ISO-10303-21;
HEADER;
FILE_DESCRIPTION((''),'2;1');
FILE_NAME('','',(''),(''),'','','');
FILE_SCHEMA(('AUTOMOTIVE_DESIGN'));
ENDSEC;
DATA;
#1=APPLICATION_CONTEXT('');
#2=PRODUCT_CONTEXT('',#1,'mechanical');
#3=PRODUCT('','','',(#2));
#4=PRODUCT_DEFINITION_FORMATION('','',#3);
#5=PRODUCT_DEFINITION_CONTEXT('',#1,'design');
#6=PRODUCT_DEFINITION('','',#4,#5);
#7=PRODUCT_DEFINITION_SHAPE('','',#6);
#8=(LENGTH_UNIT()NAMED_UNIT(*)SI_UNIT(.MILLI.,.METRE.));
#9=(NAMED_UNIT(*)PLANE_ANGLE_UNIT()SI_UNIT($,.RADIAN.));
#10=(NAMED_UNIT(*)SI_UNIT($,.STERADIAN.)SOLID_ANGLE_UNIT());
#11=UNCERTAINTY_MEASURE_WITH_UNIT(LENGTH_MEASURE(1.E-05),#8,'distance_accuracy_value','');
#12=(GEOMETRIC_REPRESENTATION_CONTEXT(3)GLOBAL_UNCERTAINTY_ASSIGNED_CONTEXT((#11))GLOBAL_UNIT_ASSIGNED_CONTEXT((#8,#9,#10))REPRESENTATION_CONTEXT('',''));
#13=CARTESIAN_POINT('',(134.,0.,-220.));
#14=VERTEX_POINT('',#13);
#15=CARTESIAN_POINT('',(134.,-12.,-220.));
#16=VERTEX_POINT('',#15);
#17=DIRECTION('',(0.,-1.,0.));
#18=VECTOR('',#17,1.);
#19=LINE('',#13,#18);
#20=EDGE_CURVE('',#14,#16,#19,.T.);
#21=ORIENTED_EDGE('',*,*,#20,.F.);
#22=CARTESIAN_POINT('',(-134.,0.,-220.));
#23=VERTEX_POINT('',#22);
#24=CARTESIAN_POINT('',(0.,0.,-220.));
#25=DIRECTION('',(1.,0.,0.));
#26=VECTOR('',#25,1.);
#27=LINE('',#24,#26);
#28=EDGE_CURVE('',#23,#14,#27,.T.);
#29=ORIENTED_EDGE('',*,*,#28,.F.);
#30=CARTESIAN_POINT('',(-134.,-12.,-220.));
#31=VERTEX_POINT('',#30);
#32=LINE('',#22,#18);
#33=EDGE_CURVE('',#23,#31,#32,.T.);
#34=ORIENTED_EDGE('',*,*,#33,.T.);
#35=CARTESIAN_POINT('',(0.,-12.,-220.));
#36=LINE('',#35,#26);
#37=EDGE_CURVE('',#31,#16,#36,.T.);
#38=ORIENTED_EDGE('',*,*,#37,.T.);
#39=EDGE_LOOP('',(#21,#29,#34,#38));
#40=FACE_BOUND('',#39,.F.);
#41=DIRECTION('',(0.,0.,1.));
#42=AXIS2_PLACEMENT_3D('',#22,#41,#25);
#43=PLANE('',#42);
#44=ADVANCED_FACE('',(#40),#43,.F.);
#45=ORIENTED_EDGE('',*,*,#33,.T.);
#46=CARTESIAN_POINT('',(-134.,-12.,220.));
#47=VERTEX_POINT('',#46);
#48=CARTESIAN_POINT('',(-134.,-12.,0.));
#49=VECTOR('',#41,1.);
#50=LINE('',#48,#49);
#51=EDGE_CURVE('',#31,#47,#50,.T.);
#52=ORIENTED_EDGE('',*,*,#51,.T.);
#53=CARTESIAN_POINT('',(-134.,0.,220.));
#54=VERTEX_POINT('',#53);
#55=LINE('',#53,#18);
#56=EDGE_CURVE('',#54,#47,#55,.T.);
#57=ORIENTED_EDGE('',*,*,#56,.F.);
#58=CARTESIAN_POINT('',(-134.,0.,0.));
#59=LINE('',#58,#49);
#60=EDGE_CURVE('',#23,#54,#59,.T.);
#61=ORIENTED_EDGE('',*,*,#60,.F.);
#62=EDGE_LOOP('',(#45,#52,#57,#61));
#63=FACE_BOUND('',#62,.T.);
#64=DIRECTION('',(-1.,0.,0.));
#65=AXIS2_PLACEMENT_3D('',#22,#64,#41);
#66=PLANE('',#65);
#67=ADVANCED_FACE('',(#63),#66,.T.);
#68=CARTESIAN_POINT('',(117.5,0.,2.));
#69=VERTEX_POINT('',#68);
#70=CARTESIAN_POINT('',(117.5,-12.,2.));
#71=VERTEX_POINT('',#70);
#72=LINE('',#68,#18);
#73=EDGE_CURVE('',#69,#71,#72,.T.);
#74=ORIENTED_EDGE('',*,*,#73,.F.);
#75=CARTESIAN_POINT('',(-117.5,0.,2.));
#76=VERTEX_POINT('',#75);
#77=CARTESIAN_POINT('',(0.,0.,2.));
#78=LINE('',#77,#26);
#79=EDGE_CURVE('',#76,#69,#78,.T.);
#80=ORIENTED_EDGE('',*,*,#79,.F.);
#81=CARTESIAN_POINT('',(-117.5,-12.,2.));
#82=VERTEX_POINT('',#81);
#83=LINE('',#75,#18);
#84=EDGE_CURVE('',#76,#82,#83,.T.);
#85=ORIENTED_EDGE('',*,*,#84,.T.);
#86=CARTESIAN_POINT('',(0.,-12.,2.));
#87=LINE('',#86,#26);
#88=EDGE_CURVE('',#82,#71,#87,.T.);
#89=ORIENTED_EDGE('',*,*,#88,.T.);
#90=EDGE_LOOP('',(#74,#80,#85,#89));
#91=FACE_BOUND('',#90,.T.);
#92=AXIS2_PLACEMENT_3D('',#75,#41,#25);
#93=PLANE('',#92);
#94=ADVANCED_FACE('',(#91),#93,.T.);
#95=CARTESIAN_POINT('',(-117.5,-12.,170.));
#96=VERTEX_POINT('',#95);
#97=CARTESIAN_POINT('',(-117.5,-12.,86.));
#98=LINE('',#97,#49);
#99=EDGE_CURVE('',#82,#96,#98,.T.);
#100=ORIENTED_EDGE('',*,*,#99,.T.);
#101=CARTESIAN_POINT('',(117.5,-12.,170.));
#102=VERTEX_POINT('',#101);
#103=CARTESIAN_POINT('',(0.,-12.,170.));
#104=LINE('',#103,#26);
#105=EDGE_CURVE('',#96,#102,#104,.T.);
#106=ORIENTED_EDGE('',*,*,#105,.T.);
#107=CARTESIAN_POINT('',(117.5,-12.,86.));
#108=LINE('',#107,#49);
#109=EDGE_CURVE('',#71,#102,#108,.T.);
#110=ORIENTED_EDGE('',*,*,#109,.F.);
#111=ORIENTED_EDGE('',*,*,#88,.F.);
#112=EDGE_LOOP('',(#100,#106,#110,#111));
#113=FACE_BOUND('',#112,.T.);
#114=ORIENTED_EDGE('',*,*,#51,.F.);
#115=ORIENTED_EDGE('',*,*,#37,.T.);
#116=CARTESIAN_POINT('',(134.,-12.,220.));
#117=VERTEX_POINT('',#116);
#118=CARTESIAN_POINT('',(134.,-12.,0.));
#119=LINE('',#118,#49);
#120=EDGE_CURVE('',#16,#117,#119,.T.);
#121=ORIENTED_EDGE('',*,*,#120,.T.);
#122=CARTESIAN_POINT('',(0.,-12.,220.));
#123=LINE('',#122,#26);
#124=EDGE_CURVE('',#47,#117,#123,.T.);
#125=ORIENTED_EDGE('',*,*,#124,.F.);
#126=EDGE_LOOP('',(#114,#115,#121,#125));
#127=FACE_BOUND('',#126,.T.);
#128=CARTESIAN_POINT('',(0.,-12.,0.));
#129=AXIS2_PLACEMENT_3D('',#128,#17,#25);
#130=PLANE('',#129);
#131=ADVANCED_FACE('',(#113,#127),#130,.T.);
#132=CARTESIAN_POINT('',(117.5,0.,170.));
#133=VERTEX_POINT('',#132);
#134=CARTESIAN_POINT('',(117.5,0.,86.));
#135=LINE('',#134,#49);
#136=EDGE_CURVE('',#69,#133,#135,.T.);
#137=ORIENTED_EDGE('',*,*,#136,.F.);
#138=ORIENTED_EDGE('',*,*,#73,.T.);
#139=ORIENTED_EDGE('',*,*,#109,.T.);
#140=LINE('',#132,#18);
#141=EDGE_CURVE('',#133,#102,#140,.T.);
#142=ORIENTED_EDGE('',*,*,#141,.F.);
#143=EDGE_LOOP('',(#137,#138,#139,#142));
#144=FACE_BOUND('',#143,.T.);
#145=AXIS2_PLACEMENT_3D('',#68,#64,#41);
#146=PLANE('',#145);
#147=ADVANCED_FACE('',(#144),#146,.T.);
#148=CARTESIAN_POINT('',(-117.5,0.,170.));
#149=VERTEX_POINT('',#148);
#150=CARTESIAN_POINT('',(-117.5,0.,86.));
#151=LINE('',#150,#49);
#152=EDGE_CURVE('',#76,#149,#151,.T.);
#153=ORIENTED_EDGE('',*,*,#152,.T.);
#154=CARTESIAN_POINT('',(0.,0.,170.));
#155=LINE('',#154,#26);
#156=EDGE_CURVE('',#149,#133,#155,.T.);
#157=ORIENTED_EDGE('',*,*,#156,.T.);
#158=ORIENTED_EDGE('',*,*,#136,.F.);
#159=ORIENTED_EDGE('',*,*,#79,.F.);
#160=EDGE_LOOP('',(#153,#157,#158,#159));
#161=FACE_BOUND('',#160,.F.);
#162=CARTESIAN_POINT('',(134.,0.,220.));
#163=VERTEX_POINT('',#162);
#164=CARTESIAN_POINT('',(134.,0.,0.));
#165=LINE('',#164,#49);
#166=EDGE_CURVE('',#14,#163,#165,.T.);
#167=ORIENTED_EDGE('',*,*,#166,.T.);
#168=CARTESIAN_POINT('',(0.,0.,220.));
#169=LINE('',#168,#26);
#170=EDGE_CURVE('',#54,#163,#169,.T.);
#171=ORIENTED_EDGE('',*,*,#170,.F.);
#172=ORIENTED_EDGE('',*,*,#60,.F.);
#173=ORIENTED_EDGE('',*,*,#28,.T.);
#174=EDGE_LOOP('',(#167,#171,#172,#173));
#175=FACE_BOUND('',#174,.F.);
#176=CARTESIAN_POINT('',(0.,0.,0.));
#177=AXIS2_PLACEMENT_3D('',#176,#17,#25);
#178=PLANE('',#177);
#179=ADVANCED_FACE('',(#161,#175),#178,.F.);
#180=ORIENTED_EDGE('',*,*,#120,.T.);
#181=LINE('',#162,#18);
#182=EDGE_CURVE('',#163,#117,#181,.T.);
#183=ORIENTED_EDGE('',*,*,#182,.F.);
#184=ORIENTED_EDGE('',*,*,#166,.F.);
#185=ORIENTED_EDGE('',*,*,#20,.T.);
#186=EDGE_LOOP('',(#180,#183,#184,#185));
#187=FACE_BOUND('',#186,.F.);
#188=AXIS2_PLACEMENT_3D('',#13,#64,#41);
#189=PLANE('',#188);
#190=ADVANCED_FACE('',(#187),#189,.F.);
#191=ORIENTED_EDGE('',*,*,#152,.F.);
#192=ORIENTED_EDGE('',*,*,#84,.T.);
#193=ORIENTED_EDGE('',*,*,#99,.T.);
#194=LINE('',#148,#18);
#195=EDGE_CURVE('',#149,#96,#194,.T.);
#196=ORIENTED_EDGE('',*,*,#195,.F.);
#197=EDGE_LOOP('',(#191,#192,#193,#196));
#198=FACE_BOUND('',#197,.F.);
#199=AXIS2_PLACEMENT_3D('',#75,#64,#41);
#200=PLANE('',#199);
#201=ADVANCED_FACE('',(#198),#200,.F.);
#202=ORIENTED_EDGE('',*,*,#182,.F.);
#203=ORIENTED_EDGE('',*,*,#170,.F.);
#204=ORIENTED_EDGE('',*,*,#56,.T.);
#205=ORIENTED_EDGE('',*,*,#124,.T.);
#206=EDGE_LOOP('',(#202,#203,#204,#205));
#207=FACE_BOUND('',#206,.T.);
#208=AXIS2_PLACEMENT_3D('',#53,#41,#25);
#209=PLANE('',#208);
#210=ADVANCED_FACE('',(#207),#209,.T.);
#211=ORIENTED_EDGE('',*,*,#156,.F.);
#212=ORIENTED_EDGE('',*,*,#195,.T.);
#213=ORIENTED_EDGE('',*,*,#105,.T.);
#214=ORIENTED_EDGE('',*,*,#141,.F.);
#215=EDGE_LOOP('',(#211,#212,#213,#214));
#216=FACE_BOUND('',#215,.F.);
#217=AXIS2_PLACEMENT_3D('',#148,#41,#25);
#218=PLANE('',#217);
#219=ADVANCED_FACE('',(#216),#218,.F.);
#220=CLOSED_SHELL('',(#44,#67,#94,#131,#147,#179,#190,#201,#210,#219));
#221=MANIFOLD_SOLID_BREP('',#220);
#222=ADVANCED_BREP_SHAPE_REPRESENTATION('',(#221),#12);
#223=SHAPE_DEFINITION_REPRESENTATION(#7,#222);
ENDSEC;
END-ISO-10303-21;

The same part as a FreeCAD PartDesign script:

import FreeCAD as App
import Part
import Sketcher
from FreeCAD import Vector
Q = App.Units.Quantity


def add_polygon(sketch, points):
    """Adds a closed chain of lines whose ends are joined by coincident constraints."""
    first, n = sketch.GeometryCount, len(points)
    for a, b in zip(points, points[1:] + points[:1]):
        sketch.addGeometry(Part.LineSegment(App.Vector(*a, 0), App.Vector(*b, 0)), False)
    for i in range(n):
        sketch.addConstraint(Sketcher.Constraint("Coincident", first + i, 2, first + (i + 1) % n, 1))

doc = App.newDocument("Part")
body = doc.addObject("PartDesign::Body", "Body")

# Sketch on XZ plane
sketch1 = body.newObject("Sketcher::SketchObject", "Sketch")
sketch1.AttachmentSupport = (doc.getObject("XZ_Plane"), [""])
sketch1.MapMode = "FlatFace"
add_polygon(sketch1, [(-134, 220), (-134, -220), (134, -220), (134, 220)])  # lines 0-3
add_polygon(sketch1, [(118, 2), (-118, 2), (-118, 170), (118, 170)])  # lines 4-7
sketch1.addConstraint([
    Sketcher.Constraint("Vertical", 0),
    Sketcher.Constraint("Horizontal", 1),
    Sketcher.Constraint("Vertical", 2),
    Sketcher.Constraint("Horizontal", 3),
    Sketcher.Constraint("Horizontal", 4),
    Sketcher.Constraint("Vertical", 5),
    Sketcher.Constraint("Horizontal", 6),
    Sketcher.Constraint("Vertical", 7),
    Sketcher.Constraint("Symmetric", 0, 2, 2, 2, -1, 1),
    Sketcher.Constraint("DistanceX", 1, 1, 1, 2, Q("268 mm")),
    Sketcher.Constraint("DistanceX", 4, 2, 4, 1, Q("235 mm")),
    Sketcher.Constraint("DistanceY", 0, 2, 0, 1, Q("440 mm")),
    Sketcher.Constraint("DistanceY", 5, 1, 5, 2, Q("168 mm")),
    Sketcher.Constraint("DistanceY", -1, 1, 4, 2, Q("2 mm")),
    Sketcher.Constraint("DistanceX", 4, 2, -1, 1, Q("117.5 mm")),
])
pad1 = body.newObject("PartDesign::Pad", "Pad")
pad1.Profile = sketch1
pad1.Length = 12

doc.recompute()
